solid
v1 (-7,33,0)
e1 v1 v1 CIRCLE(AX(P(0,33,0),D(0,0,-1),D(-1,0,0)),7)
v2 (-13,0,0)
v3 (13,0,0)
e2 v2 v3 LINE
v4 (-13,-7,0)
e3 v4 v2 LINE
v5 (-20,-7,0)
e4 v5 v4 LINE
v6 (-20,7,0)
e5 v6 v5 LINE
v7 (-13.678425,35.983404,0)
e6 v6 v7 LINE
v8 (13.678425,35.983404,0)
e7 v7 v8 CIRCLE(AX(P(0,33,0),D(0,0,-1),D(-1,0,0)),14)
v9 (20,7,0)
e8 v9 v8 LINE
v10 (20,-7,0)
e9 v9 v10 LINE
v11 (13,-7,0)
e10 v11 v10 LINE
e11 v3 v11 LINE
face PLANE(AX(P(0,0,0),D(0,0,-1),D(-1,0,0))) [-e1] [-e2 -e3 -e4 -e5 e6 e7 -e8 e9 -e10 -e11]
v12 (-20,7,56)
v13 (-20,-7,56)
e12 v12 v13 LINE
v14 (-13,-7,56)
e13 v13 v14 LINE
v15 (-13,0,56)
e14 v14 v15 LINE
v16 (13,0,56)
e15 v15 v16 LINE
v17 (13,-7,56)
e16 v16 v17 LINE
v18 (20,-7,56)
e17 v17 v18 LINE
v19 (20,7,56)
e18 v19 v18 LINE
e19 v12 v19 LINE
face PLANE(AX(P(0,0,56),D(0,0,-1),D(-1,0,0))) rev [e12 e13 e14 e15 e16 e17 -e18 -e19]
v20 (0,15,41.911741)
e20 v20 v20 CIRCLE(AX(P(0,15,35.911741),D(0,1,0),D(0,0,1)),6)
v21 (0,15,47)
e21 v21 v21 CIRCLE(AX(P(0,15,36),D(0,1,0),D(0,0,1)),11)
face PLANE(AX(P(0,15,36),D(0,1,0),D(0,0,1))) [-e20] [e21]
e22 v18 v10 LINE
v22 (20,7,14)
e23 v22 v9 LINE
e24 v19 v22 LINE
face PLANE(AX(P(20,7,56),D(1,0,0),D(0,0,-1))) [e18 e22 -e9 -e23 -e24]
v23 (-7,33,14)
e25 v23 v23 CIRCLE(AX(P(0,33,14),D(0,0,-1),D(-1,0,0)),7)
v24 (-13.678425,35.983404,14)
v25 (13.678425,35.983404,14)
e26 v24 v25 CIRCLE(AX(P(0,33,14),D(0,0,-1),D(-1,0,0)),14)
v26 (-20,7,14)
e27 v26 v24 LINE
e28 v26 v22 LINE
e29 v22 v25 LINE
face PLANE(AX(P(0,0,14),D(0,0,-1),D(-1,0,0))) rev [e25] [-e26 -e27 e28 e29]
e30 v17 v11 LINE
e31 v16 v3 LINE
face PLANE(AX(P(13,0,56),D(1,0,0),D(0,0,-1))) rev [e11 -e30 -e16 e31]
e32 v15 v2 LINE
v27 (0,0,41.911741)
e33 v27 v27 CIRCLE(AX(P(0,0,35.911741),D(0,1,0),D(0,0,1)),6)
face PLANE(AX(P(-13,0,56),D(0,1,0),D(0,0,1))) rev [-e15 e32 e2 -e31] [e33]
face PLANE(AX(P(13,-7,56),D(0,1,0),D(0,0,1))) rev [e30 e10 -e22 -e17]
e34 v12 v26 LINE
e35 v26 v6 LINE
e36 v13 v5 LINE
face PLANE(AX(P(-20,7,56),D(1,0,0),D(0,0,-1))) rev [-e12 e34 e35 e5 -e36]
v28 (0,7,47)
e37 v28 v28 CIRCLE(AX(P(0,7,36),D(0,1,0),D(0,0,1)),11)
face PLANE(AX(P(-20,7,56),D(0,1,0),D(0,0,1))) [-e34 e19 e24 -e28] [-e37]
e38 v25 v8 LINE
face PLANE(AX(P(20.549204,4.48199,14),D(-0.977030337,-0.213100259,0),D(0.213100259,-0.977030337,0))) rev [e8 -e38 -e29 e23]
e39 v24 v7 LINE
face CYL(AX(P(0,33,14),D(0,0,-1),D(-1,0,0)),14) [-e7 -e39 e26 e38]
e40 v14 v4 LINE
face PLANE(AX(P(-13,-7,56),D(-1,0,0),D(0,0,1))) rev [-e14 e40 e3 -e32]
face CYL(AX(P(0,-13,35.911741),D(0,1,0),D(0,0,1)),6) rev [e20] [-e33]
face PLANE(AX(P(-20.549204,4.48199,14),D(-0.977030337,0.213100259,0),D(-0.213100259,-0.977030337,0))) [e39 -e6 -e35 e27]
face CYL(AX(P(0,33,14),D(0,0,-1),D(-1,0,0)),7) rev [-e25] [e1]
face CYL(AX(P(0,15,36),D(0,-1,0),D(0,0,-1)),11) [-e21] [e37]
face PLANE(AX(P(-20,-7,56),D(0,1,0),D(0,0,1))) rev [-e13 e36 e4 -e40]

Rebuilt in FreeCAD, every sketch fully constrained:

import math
import FreeCAD as App
import Part
import Sketcher
from FreeCAD import Vector


def add_polygon(sketch, points):
    """Adds a closed chain of lines whose ends are joined by coincident constraints."""
    first, n = sketch.GeometryCount, len(points)
    for a, b in zip(points, points[1:] + points[:1]):
        sketch.addGeometry(Part.LineSegment(App.Vector(*a, 0), App.Vector(*b, 0)), False)
    for i in range(n):
        sketch.addConstraint(Sketcher.Constraint("Coincident", first + i, 2, first + (i + 1) % n, 1))

doc = App.newDocument("Part")
body = doc.addObject("PartDesign::Body", "Body")

sketch1 = doc.addObject("Sketcher::SketchObject", "Sketch")
body.addObject(sketch1)
sketch1.AttachmentSupport = (doc.XY_Plane, [""])
sketch1.MapMode = "FlatFace"
add_polygon(sketch1, [(-13, -7), (-13, 0), (13, 0), (13, -7), (20, -7), (20, 7), (-20, 7), (-20, -7)])
sketch1.addConstraint([
    Sketcher.Constraint("Vertical", 0),
    Sketcher.Constraint("Horizontal", 1),
    Sketcher.Constraint("Vertical", 2),
    Sketcher.Constraint("Horizontal", 3),
    Sketcher.Constraint("Vertical", 4),
    Sketcher.Constraint("Horizontal", 5),
    Sketcher.Constraint("Vertical", 6),
    Sketcher.Constraint("Horizontal", 7),
    Sketcher.Constraint("Symmetric", 0, 2, 1, 2, -1, 1),
    Sketcher.Constraint("Symmetric", 3, 2, 5, 2, -1, 1),
    Sketcher.Constraint("Horizontal", 3, 2, 6, 2),
    Sketcher.Constraint("Equal", 7, 0),
    Sketcher.Constraint("DistanceX", 1, 1, 1, 2, 26.0),
    Sketcher.Constraint("DistanceX", 3, 1, 3, 2, 7.0),
])
pad1 = doc.addObject("PartDesign::Pad", "Pad")
body.addObject(pad1)
pad1.Profile = sketch1
pad1.Length = 56

sketch2 = doc.addObject("Sketcher::SketchObject", "Sketch001")
body.addObject(sketch2)
sketch2.AttachmentSupport = (doc.XY_Plane, [""])
sketch2.MapMode = "FlatFace"
sketch2.addGeometry([
    Part.LineSegment(Vector(-20, 7, 0), Vector(-14, 36, 0)),
    Part.ArcOfCircle(Part.Circle(Vector(0, 33, 0), Vector(0, 0, 1), 14), math.radians(12), math.radians(168)),
    Part.LineSegment(Vector(14, 36, 0), Vector(20, 7, 0)),
    Part.LineSegment(Vector(20, 7, 0), Vector(-20, 7, 0)),
    Part.Circle(Vector(0, 33, 0), Vector(0, 0, 1), 7),
], False)
sketch2.addConstraint([
    Sketcher.Constraint("Tangent", 0, 2, 1, 2),
    Sketcher.Constraint("Tangent", 1, 1, 2, 1),
    Sketcher.Constraint("Coincident", 2, 2, 3, 1),
    Sketcher.Constraint("Coincident", 3, 2, 0, 1),
    Sketcher.Constraint("Horizontal", 3),
    Sketcher.Constraint("Coincident", 4, 3, 1, 3),
    Sketcher.Constraint("Symmetric", 0, 2, 1, 1, -2),
    Sketcher.Constraint("Diameter", 4, 14.0),
    Sketcher.Constraint("Radius", 1, 14.0),
    Sketcher.Constraint("DistanceX", 3, 2, 3, 1, 40.0),
    Sketcher.Constraint("DistanceY", -1, 1, 1, 3, 33.0),
    Sketcher.Constraint("DistanceY", -1, 1, 2, 2, 7.0),
])
pad2 = doc.addObject("PartDesign::Pad", "Pad001")
body.addObject(pad2)
pad2.Profile = sketch2
pad2.Length = 14

sketch3 = doc.addObject("Sketcher::SketchObject", "Sketch002")
body.addObject(sketch3)
sketch3.AttachmentSupport = (doc.XZ_Plane, [""])
sketch3.MapMode = "FlatFace"
sketch3.AttachmentOffset = App.Placement(Vector(0, 0, -7), App.Rotation())
sketch3.addGeometry(Part.Circle(Vector(0, 36, 0), Vector(0, 0, 1), 11), False)
sketch3.addConstraint([
    Sketcher.Constraint("PointOnObject", 0, 3, -2),
    Sketcher.Constraint("Diameter", 0, 22.0),
    Sketcher.Constraint("DistanceY", -1, 1, 0, 3, 36.0),
])
pad3 = doc.addObject("PartDesign::Pad", "Pad002")
body.addObject(pad3)
pad3.Profile = sketch3
pad3.Length = 8
pad3.Reversed = True

sketch4 = doc.addObject("Sketcher::SketchObject", "Sketch003")
body.addObject(sketch4)
sketch4.AttachmentSupport = (doc.XZ_Plane, [""])
sketch4.MapMode = "FlatFace"
sketch4.AttachmentOffset = App.Placement(Vector(0, 0, -15), App.Rotation())
sketch4.addGeometry(Part.Circle(Vector(0, 36, 0), Vector(0, 0, 1), 6), False)
sketch4.addConstraint([
    Sketcher.Constraint("PointOnObject", 0, 3, -2),
    Sketcher.Constraint("Diameter", 0, 12.0),
    Sketcher.Constraint("DistanceY", -1, 1, 0, 3, 35.911741),
])
pocket1 = doc.addObject("PartDesign::Pocket", "Pocket")
body.addObject(pocket1)
pocket1.Profile = sketch4
pocket1.Length = 28
pocket1.Reversed = True

doc.recompute()
